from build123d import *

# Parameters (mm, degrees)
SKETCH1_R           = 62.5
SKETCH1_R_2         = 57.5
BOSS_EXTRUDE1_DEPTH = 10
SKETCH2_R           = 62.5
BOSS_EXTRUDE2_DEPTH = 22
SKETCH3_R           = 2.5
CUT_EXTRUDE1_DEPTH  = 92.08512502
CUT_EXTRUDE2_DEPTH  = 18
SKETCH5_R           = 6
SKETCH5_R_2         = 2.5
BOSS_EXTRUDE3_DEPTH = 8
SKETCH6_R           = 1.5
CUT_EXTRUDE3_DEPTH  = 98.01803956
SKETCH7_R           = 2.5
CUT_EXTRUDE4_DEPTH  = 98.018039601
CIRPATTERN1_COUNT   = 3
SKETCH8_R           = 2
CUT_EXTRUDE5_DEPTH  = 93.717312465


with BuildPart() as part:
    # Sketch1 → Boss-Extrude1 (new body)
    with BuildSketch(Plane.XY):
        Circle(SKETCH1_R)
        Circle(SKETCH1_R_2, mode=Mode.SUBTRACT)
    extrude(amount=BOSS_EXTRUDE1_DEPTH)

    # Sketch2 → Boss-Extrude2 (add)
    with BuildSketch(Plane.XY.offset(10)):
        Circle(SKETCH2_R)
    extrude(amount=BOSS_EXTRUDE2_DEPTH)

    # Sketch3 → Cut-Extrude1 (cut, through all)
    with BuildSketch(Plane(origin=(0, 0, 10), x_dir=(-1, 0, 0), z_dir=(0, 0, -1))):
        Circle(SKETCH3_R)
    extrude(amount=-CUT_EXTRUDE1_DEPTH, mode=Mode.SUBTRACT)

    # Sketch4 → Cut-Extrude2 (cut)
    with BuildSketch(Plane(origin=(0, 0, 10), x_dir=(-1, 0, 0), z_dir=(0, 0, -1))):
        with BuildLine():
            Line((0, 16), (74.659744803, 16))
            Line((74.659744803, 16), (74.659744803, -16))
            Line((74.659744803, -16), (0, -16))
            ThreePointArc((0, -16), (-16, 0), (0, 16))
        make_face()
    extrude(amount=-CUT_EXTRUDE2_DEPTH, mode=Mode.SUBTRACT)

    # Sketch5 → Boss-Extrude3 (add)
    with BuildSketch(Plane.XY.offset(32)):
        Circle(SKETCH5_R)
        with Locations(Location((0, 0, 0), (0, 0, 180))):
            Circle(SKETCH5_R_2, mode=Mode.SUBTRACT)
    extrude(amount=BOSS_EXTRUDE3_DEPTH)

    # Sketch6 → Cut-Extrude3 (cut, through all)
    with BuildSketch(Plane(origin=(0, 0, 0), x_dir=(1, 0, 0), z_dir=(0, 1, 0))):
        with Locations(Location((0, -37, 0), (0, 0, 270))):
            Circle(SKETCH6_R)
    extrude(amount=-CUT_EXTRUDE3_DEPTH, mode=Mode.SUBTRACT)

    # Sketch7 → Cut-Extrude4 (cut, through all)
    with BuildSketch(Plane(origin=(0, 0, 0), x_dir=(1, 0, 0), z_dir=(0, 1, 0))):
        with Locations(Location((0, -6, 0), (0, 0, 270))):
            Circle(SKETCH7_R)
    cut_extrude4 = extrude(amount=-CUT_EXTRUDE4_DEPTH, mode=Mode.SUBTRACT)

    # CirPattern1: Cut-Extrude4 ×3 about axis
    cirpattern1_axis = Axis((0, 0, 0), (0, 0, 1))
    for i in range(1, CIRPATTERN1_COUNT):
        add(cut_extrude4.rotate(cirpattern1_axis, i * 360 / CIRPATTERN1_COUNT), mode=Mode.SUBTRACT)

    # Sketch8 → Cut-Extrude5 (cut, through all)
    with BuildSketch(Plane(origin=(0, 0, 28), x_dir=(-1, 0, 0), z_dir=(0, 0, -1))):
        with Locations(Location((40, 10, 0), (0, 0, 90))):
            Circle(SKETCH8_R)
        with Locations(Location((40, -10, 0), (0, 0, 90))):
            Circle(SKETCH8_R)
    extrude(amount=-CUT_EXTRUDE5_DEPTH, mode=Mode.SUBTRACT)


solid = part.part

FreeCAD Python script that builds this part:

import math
import FreeCAD as App
import Part
import Sketcher

V = App.Vector
Q = App.Units.Quantity

doc = App.newDocument("Part")
body = doc.addObject("PartDesign::Body", "Body")

# Sketch on XY plane
sketch1 = doc.addObject("Sketcher::SketchObject", "Sketch")
body.addObject(sketch1)
sketch1.AttachmentSupport = (doc.XY_Plane, [""])
sketch1.MapMode = "FlatFace"
sketch1.addGeometry(Part.Circle(V(0, 0, 0), V(0, 0, 1), 62.5), False)
sketch1.addGeometry(Part.Circle(V(0, 0, 0), V(0, 0, 1), 57.5), False)
sketch1.addConstraint(Sketcher.Constraint("Coincident", 0, 3, -1, 1))
sketch1.addConstraint(Sketcher.Constraint("Coincident", 1, 3, -1, 1))
sketch1.addConstraint(Sketcher.Constraint("Diameter", 0, Q("125 mm")))
sketch1.addConstraint(Sketcher.Constraint("Diameter", 1, Q("115 mm")))
pad1 = doc.addObject("PartDesign::Pad", "Pad")
body.addObject(pad1)
pad1.Profile = sketch1
pad1.Length = 10

# Sketch on XY plane
sketch2 = doc.addObject("Sketcher::SketchObject", "Sketch001")
body.addObject(sketch2)
sketch2.AttachmentSupport = (doc.XY_Plane, [""])
sketch2.MapMode = "FlatFace"
sketch2.AttachmentOffset = App.Placement(V(0, 0, 10), App.Rotation())
sketch2.addGeometry(Part.Circle(V(0, 0, 0), V(0, 0, 1), 62.5), False)
sketch2.addConstraint(Sketcher.Constraint("Coincident", 0, 3, -1, 1))
sketch2.addConstraint(Sketcher.Constraint("Diameter", 0, Q("125 mm")))
pad2 = doc.addObject("PartDesign::Pad", "Pad001")
body.addObject(pad2)
pad2.Profile = sketch2
pad2.Length = 22

# Sketch on XY plane
sketch3 = doc.addObject("Sketcher::SketchObject", "Sketch002")
body.addObject(sketch3)
sketch3.AttachmentSupport = (doc.XY_Plane, [""])
sketch3.MapMode = "FlatFace"
sketch3.AttachmentOffset = App.Placement(V(0, 0, 10), App.Rotation())
sketch3.addGeometry(Part.Circle(V(0, 0, 0), V(0, 0, 1), 2.5), False)
sketch3.addConstraint(Sketcher.Constraint("Coincident", 0, 3, -1, 1))
sketch3.addConstraint(Sketcher.Constraint("Diameter", 0, Q("5 mm")))
pocket1 = doc.addObject("PartDesign::Pocket", "Pocket")
body.addObject(pocket1)
pocket1.Profile = sketch3
pocket1.Type = "ThroughAll"
pocket1.Reversed = True

# Sketch on XY plane
sketch4 = doc.addObject("Sketcher::SketchObject", "Sketch003")
body.addObject(sketch4)
sketch4.AttachmentSupport = (doc.XY_Plane, [""])
sketch4.MapMode = "FlatFace"
sketch4.AttachmentOffset = App.Placement(V(0, 0, 10), App.Rotation())
sketch4.addGeometry(Part.LineSegment(V(-74.659745, 16, 0), V(0, 16, 0)), False)
sketch4.addGeometry(Part.ArcOfCircle(Part.Circle(V(0, 0, 0), V(0, 0, 1), 16), math.radians(-90), math.radians(90)), False)
sketch4.addGeometry(Part.LineSegment(V(0, -16, 0), V(-74.659745, -16, 0)), False)
sketch4.addGeometry(Part.LineSegment(V(-74.659745, -16, 0), V(-74.659745, 16, 0)), False)
sketch4.addConstraint(Sketcher.Constraint("Tangent", 0, 2, 1, 2))
sketch4.addConstraint(Sketcher.Constraint("Tangent", 1, 1, 2, 1))
sketch4.addConstraint(Sketcher.Constraint("Coincident", 2, 2, 3, 1))
sketch4.addConstraint(Sketcher.Constraint("Coincident", 3, 2, 0, 1))
sketch4.addConstraint(Sketcher.Constraint("Horizontal", 0))
sketch4.addConstraint(Sketcher.Constraint("Horizontal", 2))
sketch4.addConstraint(Sketcher.Constraint("Vertical", 3))
sketch4.addConstraint(Sketcher.Constraint("Coincident", 1, 3, -1, 1))
sketch4.addConstraint(Sketcher.Constraint("Radius", 1, Q("16 mm")))
sketch4.addConstraint(Sketcher.Constraint("DistanceX", 0, 1, 0, 2, Q("74.659745 mm")))
pocket2 = doc.addObject("PartDesign::Pocket", "Pocket001")
body.addObject(pocket2)
pocket2.Profile = sketch4
pocket2.Length = 18
pocket2.Reversed = True

# Sketch on XY plane
sketch5 = doc.addObject("Sketcher::SketchObject", "Sketch004")
body.addObject(sketch5)
sketch5.AttachmentSupport = (doc.XY_Plane, [""])
sketch5.MapMode = "FlatFace"
sketch5.AttachmentOffset = App.Placement(V(0, 0, 32), App.Rotation())
sketch5.addGeometry(Part.Circle(V(0, 0, 0), V(0, 0, 1), 6), False)
sketch5.addGeometry(Part.Circle(V(0, 0, 0), V(0, 0, 1), 2.5), False)
sketch5.addConstraint(Sketcher.Constraint("Coincident", 0, 3, -1, 1))
sketch5.addConstraint(Sketcher.Constraint("Coincident", 1, 3, -1, 1))
sketch5.addConstraint(Sketcher.Constraint("Diameter", 0, Q("12 mm")))
sketch5.addConstraint(Sketcher.Constraint("Diameter", 1, Q("5 mm")))
pad3 = doc.addObject("PartDesign::Pad", "Pad002")
body.addObject(pad3)
pad3.Profile = sketch5
pad3.Length = 8

# Sketch on XZ plane
sketch6 = doc.addObject("Sketcher::SketchObject", "Sketch005")
body.addObject(sketch6)
sketch6.AttachmentSupport = (doc.XZ_Plane, [""])
sketch6.MapMode = "FlatFace"
sketch6.addGeometry(Part.Circle(V(0, 37, 0), V(0, 0, 1), 1.5), False)
sketch6.addConstraint(Sketcher.Constraint("PointOnObject", 0, 3, -2))
sketch6.addConstraint(Sketcher.Constraint("Diameter", 0, Q("3 mm")))
sketch6.addConstraint(Sketcher.Constraint("DistanceY", -1, 1, 0, 3, Q("37 mm")))
pocket3 = doc.addObject("PartDesign::Pocket", "Pocket002")
body.addObject(pocket3)
pocket3.Profile = sketch6
pocket3.Type = "ThroughAll"
pocket3.Reversed = True

# Sketch on XZ plane
sketch7 = doc.addObject("Sketcher::SketchObject", "Sketch006")
body.addObject(sketch7)
sketch7.AttachmentSupport = (doc.XZ_Plane, [""])
sketch7.MapMode = "FlatFace"
sketch7.addGeometry(Part.Circle(V(0, 6, 0), V(0, 0, 1), 2.5), False)
sketch7.addConstraint(Sketcher.Constraint("PointOnObject", 0, 3, -2))
sketch7.addConstraint(Sketcher.Constraint("Diameter", 0, Q("5 mm")))
sketch7.addConstraint(Sketcher.Constraint("DistanceY", -1, 1, 0, 3, Q("6 mm")))
pocket4 = doc.addObject("PartDesign::Pocket", "Pocket003")
body.addObject(pocket4)
pocket4.Profile = sketch7
pocket4.Type = "ThroughAll"
pocket4.Reversed = True
doc.recompute()

polarpattern = doc.addObject("PartDesign::PolarPattern", "PolarPattern")
body.addObject(polarpattern)
polarpattern.Originals = [pocket4]
polarpattern.Axis = (doc.Z_Axis, [""])
polarpattern.Angle = 360
polarpattern.Occurrences = 3
body.Tip = polarpattern

# Sketch on XY plane
sketch8 = doc.addObject("Sketcher::SketchObject", "Sketch007")
body.addObject(sketch8)
sketch8.AttachmentSupport = (doc.XY_Plane, [""])
sketch8.MapMode = "FlatFace"
sketch8.AttachmentOffset = App.Placement(V(0, 0, 28), App.Rotation())
sketch8.addGeometry(Part.Circle(V(-40, 10, 0), V(0, 0, 1), 2), False)
sketch8.addGeometry(Part.Circle(V(-40, -10, 0), V(0, 0, 1), 2), False)
sketch8.addConstraint(Sketcher.Constraint("Equal", 0, 1))
sketch8.addConstraint(Sketcher.Constraint("Symmetric", 0, 3, 1, 3, -1))
sketch8.addConstraint(Sketcher.Constraint("Diameter", 0, Q("4 mm")))
sketch8.addConstraint(Sketcher.Constraint("DistanceX", 0, 3, -1, 1, Q("40 mm")))
sketch8.addConstraint(Sketcher.Constraint("DistanceY", -1, 1, 0, 3, Q("10 mm")))
pocket5 = doc.addObject("PartDesign::Pocket", "Pocket004")
body.addObject(pocket5)
pocket5.Profile = sketch8
pocket5.Type = "ThroughAll"
pocket5.Reversed = True

doc.recompute()
